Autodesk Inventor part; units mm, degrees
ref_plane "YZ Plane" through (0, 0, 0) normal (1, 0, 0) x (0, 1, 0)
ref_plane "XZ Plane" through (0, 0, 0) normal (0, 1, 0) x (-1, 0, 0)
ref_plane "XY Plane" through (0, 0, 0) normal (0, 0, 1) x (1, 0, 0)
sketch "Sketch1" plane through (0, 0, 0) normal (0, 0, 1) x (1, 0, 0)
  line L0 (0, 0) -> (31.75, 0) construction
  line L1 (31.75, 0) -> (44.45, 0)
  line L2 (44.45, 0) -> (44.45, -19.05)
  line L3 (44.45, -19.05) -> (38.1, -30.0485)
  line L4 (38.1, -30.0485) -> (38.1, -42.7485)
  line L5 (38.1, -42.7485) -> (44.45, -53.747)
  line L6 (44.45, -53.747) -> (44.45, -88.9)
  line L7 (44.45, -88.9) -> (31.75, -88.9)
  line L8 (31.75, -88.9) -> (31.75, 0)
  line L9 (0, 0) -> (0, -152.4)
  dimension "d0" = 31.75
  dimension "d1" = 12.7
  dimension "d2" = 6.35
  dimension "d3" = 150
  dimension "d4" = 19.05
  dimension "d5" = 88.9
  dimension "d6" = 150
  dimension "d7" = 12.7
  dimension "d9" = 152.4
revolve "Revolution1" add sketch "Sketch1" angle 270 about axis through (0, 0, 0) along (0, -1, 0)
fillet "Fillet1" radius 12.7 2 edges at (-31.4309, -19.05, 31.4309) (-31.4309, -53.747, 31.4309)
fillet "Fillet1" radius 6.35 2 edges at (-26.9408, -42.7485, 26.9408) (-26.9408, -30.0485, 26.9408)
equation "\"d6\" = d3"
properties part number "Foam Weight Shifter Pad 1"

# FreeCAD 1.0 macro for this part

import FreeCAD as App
import Part
import Sketcher
Q = App.Units.Quantity


def edges_at(feature, points):
    """Names of the edges that pass closest to the given points."""
    edges = feature.Shape.Edges
    near = lambda p: min(range(len(edges)), key=lambda i: edges[i].distToShape(Part.Vertex(*p))[0])
    return sorted({f"Edge{near(p) + 1}" for p in points})


def add_polygon(sketch, points):
    """Adds a closed chain of lines whose ends are joined by coincident constraints."""
    first, n = sketch.GeometryCount, len(points)
    for a, b in zip(points, points[1:] + points[:1]):
        sketch.addGeometry(Part.LineSegment(App.Vector(*a, 0), App.Vector(*b, 0)), False)
    for i in range(n):
        sketch.addConstraint(Sketcher.Constraint("Coincident", first + i, 2, first + (i + 1) % n, 1))

doc = App.newDocument("Part")
body = doc.addObject("PartDesign::Body", "Body")

sketch1 = body.newObject("Sketcher::SketchObject", "Sketch")
sketch1.AttachmentSupport = (doc.getObject("XY_Plane"), [""])
sketch1.MapMode = "FlatFace"
add_polygon(sketch1, [(44, 0), (32, 0), (32, -89), (44, -89), (44, -54), (38, -43), (38, -30), (44, -19)])
sketch1.addConstraint(Sketcher.Constraint("Horizontal", 0))
sketch1.addConstraint(Sketcher.Constraint("Vertical", 1))
sketch1.addConstraint(Sketcher.Constraint("Horizontal", 2))
sketch1.addConstraint(Sketcher.Constraint("Vertical", 3))
sketch1.addConstraint(Sketcher.Constraint("Vertical", 5))
sketch1.addConstraint(Sketcher.Constraint("Vertical", 7))
sketch1.addConstraint(Sketcher.Constraint("PointOnObject", 0, 2, -1))
sketch1.addConstraint(Sketcher.Constraint("Vertical", 3, 2, 6, 2))
sketch1.addConstraint(Sketcher.Constraint("Equal", 2, 5))
sketch1.addConstraint(Sketcher.Constraint("Equal", 4, 6))
sketch1.addConstraint(Sketcher.Constraint("DistanceX", 0, 2, 0, 1, Q("0.5 in")))
sketch1.addConstraint(Sketcher.Constraint("DistanceY", 1, 2, 1, 1, Q("3.5 in")))
sketch1.addConstraint(Sketcher.Constraint("Distance", 4, Q("0.5 in")))
sketch1.addConstraint(Sketcher.Constraint("DistanceY", 7, 1, 7, 2, Q("0.75 in")))
sketch1.addConstraint(Sketcher.Constraint("DistanceX", -1, 1, 0, 2, Q("1.25 in")))
sketch1.addConstraint(Sketcher.Constraint("DistanceX", 4, 2, 3, 2, Q("0.25 in")))
revolution = body.newObject("PartDesign::Revolution", "Revolution")
revolution.Profile = sketch1
revolution.ReferenceAxis = (sketch1, ["V_Axis"])
revolution.Angle = 270
revolution.Reversed = True
doc.recompute()

fillet = body.newObject("PartDesign::Fillet", "Fillet")
fillet.Base = (revolution, edges_at(revolution, [(-31.431, -19.05, 31.431), (-31.431, -53.747, 31.431)]))
fillet.Radius = Q("0.5 in")
doc.recompute()

fillet2 = body.newObject("PartDesign::Fillet", "Fillet001")
fillet2.Base = (fillet, edges_at(fillet, [(-26.941, -42.748, 26.941), (-26.941, -30.049, 26.941)]))
fillet2.Radius = Q("0.25 in")

doc.recompute()
